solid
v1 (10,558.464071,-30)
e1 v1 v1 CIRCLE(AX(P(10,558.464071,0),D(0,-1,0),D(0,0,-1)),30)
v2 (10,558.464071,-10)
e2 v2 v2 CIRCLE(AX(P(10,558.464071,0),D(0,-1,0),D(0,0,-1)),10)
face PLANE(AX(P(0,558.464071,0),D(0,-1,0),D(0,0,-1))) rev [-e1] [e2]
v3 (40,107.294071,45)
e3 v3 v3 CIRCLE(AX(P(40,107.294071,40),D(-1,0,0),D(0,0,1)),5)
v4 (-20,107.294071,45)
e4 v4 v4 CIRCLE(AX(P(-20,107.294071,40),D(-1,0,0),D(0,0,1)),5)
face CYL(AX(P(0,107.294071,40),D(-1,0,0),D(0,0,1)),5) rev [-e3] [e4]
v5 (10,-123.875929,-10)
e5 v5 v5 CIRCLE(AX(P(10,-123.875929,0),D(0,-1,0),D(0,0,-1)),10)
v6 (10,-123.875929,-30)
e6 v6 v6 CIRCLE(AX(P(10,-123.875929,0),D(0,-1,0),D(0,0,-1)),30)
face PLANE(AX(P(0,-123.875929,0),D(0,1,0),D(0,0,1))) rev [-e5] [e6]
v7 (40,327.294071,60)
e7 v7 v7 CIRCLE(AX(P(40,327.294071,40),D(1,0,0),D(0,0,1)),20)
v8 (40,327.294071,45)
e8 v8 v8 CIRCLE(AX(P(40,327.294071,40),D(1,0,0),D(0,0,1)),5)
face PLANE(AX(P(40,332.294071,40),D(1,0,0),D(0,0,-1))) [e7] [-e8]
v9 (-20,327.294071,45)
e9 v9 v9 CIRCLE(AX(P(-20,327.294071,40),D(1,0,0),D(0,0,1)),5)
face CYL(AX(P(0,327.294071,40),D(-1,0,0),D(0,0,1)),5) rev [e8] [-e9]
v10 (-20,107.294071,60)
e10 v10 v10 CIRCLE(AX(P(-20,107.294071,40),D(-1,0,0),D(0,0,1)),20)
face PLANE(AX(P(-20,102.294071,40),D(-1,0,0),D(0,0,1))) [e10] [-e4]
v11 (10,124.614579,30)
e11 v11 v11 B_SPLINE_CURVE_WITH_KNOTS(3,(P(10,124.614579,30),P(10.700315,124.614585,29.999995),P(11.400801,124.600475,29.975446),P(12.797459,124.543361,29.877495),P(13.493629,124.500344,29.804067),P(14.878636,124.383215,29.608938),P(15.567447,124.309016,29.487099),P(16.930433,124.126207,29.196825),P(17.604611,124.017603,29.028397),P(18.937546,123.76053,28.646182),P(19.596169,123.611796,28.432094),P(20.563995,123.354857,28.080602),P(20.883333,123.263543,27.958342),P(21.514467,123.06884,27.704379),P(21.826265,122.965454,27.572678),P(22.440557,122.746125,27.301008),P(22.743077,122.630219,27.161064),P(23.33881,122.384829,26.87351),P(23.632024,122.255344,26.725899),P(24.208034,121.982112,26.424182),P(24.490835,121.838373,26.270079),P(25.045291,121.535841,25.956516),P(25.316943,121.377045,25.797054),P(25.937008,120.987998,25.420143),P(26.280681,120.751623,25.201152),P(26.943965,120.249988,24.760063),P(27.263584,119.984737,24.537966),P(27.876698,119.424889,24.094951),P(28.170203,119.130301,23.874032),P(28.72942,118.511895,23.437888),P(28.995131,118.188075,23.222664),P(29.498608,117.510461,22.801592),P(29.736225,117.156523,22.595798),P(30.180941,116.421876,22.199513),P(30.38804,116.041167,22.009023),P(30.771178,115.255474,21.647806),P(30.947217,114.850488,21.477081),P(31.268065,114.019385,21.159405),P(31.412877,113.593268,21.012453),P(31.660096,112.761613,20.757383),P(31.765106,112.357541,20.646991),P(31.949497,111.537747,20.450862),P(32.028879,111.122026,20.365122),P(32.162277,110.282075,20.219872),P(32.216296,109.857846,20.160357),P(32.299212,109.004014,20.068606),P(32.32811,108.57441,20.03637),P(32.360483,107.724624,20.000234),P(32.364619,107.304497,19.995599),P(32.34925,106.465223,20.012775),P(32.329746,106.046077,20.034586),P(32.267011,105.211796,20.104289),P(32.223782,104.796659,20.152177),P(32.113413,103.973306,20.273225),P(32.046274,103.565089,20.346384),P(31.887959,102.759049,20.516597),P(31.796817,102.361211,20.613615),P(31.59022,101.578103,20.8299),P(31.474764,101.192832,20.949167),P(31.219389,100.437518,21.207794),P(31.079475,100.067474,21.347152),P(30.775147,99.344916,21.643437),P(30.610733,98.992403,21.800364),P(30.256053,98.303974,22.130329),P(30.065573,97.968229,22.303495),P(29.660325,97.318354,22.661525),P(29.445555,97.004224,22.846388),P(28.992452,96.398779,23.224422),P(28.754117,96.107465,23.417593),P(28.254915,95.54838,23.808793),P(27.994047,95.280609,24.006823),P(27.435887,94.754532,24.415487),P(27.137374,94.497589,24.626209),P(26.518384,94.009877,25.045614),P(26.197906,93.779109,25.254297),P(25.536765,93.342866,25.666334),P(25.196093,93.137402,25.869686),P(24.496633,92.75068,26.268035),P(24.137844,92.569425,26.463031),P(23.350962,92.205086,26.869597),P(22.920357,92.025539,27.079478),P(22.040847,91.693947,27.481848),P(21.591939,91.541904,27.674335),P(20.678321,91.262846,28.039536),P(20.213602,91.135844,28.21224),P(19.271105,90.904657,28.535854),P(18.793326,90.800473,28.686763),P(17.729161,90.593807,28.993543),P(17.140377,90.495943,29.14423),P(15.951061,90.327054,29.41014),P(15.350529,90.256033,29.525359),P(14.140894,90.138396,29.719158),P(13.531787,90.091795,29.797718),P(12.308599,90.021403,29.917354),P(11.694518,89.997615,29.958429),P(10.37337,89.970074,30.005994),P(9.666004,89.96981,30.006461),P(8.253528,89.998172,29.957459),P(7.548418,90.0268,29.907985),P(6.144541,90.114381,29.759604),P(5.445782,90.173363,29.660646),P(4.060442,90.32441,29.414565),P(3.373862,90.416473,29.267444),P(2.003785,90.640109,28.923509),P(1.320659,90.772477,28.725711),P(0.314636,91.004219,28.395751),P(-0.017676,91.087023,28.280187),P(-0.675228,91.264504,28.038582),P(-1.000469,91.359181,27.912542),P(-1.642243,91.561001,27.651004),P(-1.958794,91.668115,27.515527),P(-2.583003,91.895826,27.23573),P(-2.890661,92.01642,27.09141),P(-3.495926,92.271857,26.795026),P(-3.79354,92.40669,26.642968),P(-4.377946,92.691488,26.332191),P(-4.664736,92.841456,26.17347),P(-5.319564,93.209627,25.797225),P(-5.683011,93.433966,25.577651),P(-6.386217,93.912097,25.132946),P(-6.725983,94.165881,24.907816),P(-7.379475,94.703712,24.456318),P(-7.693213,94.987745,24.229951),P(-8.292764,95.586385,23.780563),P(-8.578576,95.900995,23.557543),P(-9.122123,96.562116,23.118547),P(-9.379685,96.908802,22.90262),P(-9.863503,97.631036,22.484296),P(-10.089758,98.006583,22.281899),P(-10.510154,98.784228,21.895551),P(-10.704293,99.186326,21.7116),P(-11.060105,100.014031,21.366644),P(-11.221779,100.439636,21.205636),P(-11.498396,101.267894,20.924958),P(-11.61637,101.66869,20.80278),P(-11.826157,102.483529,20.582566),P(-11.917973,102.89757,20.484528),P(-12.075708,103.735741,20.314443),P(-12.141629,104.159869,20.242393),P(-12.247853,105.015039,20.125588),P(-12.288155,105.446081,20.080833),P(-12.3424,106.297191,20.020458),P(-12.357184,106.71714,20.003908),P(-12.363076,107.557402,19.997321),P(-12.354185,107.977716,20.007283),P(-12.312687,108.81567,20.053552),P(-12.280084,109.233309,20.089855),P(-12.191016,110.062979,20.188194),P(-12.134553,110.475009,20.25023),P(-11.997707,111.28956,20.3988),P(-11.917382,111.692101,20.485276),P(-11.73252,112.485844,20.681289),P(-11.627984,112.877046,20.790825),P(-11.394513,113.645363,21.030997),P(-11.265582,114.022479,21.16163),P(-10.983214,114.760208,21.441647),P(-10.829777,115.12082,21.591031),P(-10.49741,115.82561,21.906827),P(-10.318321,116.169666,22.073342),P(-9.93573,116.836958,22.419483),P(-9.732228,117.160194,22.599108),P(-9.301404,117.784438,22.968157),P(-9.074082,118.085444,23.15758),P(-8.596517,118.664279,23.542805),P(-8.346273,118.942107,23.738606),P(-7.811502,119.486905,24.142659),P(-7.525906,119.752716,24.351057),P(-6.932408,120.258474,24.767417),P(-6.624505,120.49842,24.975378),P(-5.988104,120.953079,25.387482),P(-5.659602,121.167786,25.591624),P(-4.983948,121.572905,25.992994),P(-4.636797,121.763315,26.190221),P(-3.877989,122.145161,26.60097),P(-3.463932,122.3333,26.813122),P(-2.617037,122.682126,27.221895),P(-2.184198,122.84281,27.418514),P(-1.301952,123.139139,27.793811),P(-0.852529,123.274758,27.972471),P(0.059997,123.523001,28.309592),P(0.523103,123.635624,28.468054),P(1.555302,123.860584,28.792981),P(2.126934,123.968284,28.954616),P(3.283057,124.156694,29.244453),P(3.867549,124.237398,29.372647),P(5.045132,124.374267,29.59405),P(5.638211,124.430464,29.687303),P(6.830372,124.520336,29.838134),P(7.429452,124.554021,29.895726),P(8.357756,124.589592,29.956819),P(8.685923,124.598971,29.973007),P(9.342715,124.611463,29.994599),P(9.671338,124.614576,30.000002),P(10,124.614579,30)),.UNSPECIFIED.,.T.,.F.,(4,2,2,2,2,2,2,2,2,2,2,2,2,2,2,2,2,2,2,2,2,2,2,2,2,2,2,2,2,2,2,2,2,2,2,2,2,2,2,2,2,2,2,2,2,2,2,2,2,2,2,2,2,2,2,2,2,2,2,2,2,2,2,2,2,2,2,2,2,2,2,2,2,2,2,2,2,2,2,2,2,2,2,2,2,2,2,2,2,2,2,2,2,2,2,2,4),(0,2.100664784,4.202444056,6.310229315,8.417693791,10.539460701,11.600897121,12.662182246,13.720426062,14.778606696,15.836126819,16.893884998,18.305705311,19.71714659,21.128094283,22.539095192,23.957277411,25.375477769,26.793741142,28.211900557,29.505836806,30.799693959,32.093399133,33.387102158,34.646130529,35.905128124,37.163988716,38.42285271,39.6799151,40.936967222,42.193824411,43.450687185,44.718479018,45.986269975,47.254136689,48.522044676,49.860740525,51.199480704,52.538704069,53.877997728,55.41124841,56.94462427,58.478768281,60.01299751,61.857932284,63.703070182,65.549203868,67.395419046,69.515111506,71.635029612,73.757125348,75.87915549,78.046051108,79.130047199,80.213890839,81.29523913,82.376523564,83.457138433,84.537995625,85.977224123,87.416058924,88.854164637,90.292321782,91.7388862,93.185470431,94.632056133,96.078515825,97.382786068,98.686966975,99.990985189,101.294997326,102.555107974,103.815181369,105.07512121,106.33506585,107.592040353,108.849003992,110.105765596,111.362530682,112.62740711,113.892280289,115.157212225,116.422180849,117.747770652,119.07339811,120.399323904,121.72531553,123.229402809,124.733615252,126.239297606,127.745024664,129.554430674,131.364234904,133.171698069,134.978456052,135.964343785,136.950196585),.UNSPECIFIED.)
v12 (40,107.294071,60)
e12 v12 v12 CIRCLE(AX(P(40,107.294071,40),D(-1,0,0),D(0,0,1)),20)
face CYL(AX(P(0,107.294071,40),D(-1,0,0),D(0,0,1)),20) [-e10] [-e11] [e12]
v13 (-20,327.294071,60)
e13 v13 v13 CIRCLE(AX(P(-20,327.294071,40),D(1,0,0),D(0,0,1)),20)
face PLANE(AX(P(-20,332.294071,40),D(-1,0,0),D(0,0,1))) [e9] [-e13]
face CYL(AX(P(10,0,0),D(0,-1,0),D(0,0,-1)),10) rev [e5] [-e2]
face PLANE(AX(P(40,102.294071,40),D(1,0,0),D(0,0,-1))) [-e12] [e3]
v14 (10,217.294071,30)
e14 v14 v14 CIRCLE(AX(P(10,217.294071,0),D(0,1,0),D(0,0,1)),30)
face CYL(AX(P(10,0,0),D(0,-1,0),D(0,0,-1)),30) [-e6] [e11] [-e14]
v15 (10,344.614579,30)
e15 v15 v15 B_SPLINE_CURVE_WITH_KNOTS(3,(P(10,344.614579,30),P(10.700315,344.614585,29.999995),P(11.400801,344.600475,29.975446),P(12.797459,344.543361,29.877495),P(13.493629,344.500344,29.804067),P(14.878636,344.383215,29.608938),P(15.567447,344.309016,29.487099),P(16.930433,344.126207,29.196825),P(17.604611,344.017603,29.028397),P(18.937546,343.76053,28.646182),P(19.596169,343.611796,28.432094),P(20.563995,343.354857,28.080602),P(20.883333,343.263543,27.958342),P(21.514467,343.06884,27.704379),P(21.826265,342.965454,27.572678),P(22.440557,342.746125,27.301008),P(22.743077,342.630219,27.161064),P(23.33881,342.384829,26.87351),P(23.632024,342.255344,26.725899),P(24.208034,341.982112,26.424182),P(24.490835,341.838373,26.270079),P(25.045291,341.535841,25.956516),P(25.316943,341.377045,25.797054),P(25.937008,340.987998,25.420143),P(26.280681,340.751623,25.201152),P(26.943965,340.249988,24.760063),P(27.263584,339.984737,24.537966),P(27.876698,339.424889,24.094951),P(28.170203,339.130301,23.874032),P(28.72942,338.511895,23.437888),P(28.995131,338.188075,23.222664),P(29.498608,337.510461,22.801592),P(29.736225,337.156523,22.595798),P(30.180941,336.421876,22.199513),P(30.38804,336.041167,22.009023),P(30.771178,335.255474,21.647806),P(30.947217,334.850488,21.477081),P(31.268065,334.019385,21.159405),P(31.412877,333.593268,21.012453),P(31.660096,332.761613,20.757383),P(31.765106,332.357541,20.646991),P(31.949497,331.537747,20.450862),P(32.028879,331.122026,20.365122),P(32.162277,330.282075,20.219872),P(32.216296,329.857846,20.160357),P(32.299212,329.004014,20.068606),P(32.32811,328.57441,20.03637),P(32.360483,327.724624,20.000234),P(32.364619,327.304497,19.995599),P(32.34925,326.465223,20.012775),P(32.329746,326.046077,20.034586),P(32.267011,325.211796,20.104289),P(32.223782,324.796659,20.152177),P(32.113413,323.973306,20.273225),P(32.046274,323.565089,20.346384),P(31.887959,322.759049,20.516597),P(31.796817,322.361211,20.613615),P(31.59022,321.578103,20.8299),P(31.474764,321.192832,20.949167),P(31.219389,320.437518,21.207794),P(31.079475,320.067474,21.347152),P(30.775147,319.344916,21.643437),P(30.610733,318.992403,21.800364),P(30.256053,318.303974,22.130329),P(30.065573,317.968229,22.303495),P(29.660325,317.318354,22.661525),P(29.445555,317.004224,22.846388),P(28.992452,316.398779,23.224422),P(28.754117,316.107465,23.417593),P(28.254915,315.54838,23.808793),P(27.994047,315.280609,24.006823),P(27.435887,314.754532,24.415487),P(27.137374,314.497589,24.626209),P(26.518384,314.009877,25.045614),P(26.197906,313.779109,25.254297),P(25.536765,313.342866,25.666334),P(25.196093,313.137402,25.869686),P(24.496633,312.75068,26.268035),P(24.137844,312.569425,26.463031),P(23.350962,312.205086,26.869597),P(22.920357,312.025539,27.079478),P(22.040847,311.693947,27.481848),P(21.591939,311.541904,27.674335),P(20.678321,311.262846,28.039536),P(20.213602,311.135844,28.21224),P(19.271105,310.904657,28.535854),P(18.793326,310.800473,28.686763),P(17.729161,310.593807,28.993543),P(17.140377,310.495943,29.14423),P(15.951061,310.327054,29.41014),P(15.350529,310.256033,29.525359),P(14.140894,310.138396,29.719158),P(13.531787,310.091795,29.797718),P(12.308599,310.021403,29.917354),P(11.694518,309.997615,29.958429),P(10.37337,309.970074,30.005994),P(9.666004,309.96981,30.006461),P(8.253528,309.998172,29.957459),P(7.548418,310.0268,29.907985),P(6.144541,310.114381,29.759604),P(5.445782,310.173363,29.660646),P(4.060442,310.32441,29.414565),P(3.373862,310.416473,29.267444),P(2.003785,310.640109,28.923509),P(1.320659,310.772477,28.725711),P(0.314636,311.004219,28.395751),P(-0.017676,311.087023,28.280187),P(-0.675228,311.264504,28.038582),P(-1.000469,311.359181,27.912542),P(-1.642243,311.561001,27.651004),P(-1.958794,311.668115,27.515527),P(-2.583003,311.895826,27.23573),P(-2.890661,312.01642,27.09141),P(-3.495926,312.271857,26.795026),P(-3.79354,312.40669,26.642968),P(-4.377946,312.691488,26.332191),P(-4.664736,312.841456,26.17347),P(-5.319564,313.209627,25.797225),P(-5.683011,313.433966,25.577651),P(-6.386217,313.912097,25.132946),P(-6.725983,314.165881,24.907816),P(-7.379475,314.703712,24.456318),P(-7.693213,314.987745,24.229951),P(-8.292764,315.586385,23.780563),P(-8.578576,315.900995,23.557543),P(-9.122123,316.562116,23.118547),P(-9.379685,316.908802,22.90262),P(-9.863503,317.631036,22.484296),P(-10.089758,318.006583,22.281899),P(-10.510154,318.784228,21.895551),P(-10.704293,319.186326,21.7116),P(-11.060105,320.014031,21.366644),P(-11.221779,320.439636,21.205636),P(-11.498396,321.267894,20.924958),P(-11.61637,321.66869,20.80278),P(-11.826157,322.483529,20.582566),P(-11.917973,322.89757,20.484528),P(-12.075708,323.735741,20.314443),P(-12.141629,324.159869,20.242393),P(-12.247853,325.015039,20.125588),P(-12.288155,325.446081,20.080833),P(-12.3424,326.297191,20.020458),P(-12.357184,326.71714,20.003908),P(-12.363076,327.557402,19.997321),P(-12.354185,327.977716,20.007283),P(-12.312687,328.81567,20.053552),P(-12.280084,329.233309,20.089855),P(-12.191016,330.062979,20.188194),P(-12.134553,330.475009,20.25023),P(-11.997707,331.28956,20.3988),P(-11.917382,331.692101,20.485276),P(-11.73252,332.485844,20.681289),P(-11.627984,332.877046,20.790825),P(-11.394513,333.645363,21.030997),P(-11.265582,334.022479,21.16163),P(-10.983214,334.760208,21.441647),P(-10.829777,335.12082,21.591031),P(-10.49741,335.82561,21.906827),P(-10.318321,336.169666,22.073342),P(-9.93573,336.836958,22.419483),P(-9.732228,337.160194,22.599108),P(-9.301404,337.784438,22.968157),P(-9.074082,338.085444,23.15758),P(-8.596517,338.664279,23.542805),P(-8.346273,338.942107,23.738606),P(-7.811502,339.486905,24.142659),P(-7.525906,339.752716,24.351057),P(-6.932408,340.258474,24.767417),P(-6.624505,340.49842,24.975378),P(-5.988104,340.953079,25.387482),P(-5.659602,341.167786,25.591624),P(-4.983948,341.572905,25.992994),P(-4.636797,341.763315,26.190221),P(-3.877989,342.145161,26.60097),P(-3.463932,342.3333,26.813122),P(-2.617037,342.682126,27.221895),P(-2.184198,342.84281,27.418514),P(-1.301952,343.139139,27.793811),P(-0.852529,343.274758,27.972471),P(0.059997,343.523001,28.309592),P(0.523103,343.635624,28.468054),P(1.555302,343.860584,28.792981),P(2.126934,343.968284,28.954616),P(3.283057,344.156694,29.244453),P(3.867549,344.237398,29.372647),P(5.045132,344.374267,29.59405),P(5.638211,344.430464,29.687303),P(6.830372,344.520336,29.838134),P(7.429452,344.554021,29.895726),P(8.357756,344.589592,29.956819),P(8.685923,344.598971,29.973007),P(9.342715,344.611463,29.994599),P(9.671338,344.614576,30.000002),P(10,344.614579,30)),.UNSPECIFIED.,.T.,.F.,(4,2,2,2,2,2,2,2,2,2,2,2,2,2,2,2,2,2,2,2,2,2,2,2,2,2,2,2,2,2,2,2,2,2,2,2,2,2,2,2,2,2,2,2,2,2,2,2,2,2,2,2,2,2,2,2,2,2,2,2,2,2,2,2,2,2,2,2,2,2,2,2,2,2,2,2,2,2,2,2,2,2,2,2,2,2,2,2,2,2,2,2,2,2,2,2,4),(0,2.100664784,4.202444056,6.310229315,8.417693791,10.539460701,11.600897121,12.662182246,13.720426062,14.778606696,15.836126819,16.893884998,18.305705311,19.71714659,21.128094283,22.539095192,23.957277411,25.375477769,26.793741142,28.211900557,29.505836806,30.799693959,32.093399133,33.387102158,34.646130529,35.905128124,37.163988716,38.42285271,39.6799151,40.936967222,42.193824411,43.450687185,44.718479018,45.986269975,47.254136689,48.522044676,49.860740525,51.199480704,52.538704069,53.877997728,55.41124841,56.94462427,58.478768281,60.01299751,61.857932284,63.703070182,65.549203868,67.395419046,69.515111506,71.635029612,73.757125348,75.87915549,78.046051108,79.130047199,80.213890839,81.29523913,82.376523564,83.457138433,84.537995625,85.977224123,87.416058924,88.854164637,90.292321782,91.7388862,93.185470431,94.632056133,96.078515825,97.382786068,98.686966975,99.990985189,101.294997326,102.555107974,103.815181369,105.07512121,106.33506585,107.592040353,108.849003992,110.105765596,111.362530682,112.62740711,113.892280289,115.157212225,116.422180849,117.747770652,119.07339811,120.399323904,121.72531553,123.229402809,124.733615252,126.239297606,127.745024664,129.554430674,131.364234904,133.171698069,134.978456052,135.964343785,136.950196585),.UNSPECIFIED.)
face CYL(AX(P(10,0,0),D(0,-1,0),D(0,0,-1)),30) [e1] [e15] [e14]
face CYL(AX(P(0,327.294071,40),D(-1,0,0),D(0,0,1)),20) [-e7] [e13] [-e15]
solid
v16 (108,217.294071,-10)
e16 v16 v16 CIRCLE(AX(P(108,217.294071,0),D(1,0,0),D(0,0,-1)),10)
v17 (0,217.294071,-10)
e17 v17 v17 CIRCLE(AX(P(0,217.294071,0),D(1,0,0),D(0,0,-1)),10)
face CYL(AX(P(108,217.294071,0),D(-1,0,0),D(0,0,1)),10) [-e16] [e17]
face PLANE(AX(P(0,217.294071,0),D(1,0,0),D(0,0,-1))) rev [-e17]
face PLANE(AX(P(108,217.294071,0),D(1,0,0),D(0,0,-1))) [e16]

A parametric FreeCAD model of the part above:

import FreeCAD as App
import Part
import Sketcher

V = App.Vector
Q = App.Units.Quantity


def add_polygon(sketch, points):
    """Adds a closed chain of lines whose ends are joined by coincident constraints."""
    first, n = sketch.GeometryCount, len(points)
    for a, b in zip(points, points[1:] + points[:1]):
        sketch.addGeometry(Part.LineSegment(App.Vector(*a, 0), App.Vector(*b, 0)), False)
    for i in range(n):
        sketch.addConstraint(Sketcher.Constraint("Coincident", first + i, 2, first + (i + 1) % n, 1))

doc = App.newDocument("Part")
body = doc.addObject("PartDesign::Body", "Body")

# Sketch on XY plane
sketch1 = doc.addObject("Sketcher::SketchObject", "Sketch")
body.addObject(sketch1)
sketch1.AttachmentSupport = (doc.XY_Plane, [""])
sketch1.MapMode = "FlatFace"
add_polygon(sketch1, [(-20, 558.464071), (-20, -123.875929), (0, -123.875929), (0, 558.464071)])  # lines 0-3
sketch1.addGeometry(Part.LineSegment(V(10, -123.875929, 0), V(10, 558.464071, 0)), True)  # axis
sketch1.addConstraint(Sketcher.Constraint("Vertical", 0))
sketch1.addConstraint(Sketcher.Constraint("Horizontal", 1))
sketch1.addConstraint(Sketcher.Constraint("Vertical", 2))
sketch1.addConstraint(Sketcher.Constraint("Horizontal", 3))
sketch1.addConstraint(Sketcher.Constraint("Vertical", 4))
sketch1.addConstraint(Sketcher.Constraint("PointOnObject", 1, 2, -2))
sketch1.addConstraint(Sketcher.Constraint("Horizontal", 1, 2, 4, 1))
sketch1.addConstraint(Sketcher.Constraint("Horizontal", 3, 2, 4, 2))
sketch1.addConstraint(Sketcher.Constraint("DistanceX", 1, 1, 1, 2, Q("20 mm")))
sketch1.addConstraint(Sketcher.Constraint("DistanceX", -1, 1, 4, 1, Q("10 mm")))
sketch1.addConstraint(Sketcher.Constraint("DistanceY", 0, 2, 0, 1, Q("682.34 mm")))
sketch1.addConstraint(Sketcher.Constraint("DistanceY", 0, 2, -1, 1, Q("123.875929 mm")))
revolution = doc.addObject("PartDesign::Revolution", "Revolution")
body.addObject(revolution)
revolution.Profile = sketch1
revolution.ReferenceAxis = (sketch1, ["Axis0"])
revolution.Angle = 360

# Sketch on XY plane
sketch2 = doc.addObject("Sketcher::SketchObject", "Sketch001")
body.addObject(sketch2)
sketch2.AttachmentSupport = (doc.XY_Plane, [""])
sketch2.MapMode = "FlatFace"
sketch2.AttachmentOffset = App.Placement(V(0, 0, 40), App.Rotation())
add_polygon(sketch2, [(-20, 102.294071), (-20, 87.294071), (40, 87.294071), (40, 102.294071)])  # lines 0-3
sketch2.addGeometry(Part.LineSegment(V(-20, 107.294071, 0), V(40, 107.294071, 0)), True)  # axis
sketch2.addConstraint(Sketcher.Constraint("Vertical", 0))
sketch2.addConstraint(Sketcher.Constraint("Horizontal", 1))
sketch2.addConstraint(Sketcher.Constraint("Vertical", 2))
sketch2.addConstraint(Sketcher.Constraint("Horizontal", 3))
sketch2.addConstraint(Sketcher.Constraint("Horizontal", 4))
sketch2.addConstraint(Sketcher.Constraint("Vertical", 3, 2, 4, 1))
sketch2.addConstraint(Sketcher.Constraint("Vertical", 2, 2, 4, 2))
sketch2.addConstraint(Sketcher.Constraint("DistanceX", 1, 1, 1, 2, Q("60 mm")))
sketch2.addConstraint(Sketcher.Constraint("DistanceY", 0, 2, 0, 1, Q("15 mm")))
sketch2.addConstraint(Sketcher.Constraint("DistanceX", 0, 2, -1, 1, Q("20 mm")))
sketch2.addConstraint(Sketcher.Constraint("DistanceY", 3, 2, 4, 1, Q("5 mm")))
sketch2.addConstraint(Sketcher.Constraint("DistanceY", -1, 1, 0, 2, Q("87.294071 mm")))
revolution2 = doc.addObject("PartDesign::Revolution", "Revolution001")
body.addObject(revolution2)
revolution2.Profile = sketch2
revolution2.ReferenceAxis = (sketch2, ["Axis0"])
revolution2.Angle = 360
doc.recompute()

datumplane = doc.addObject("PartDesign::Plane", "DatumPlane")
body.addObject(datumplane)
datumplane.AttachmentSupport = (doc.XZ_Plane, [""])
datumplane.MapMode = "FlatFace"
datumplane.AttachmentOffset = App.Placement(V(0, 0, -217.294071), App.Rotation())
mirrored = doc.addObject("PartDesign::Mirrored", "Mirrored")
body.addObject(mirrored)
mirrored.Originals = [revolution2]
mirrored.MirrorPlane = (datumplane, [""])
body.Tip = mirrored
body2 = doc.addObject("PartDesign::Body", "Body001")

# Sketch on YZ plane
sketch3 = doc.addObject("Sketcher::SketchObject", "Sketch002")
body2.addObject(sketch3)
sketch3.AttachmentSupport = (doc.getObject("YZ_Plane001"), [""])
sketch3.MapMode = "FlatFace"
sketch3.addGeometry(Part.Circle(V(217.294071, 0, 0), V(0, 0, 1), 10), False)
sketch3.addConstraint(Sketcher.Constraint("PointOnObject", 0, 3, -1))
sketch3.addConstraint(Sketcher.Constraint("Diameter", 0, Q("20 mm")))
sketch3.addConstraint(Sketcher.Constraint("DistanceX", -1, 1, 0, 3, Q("217.294071 mm")))
pad1 = doc.addObject("PartDesign::Pad", "Pad")
body2.addObject(pad1)
pad1.Profile = sketch3
pad1.Length = 108

doc.recompute()
